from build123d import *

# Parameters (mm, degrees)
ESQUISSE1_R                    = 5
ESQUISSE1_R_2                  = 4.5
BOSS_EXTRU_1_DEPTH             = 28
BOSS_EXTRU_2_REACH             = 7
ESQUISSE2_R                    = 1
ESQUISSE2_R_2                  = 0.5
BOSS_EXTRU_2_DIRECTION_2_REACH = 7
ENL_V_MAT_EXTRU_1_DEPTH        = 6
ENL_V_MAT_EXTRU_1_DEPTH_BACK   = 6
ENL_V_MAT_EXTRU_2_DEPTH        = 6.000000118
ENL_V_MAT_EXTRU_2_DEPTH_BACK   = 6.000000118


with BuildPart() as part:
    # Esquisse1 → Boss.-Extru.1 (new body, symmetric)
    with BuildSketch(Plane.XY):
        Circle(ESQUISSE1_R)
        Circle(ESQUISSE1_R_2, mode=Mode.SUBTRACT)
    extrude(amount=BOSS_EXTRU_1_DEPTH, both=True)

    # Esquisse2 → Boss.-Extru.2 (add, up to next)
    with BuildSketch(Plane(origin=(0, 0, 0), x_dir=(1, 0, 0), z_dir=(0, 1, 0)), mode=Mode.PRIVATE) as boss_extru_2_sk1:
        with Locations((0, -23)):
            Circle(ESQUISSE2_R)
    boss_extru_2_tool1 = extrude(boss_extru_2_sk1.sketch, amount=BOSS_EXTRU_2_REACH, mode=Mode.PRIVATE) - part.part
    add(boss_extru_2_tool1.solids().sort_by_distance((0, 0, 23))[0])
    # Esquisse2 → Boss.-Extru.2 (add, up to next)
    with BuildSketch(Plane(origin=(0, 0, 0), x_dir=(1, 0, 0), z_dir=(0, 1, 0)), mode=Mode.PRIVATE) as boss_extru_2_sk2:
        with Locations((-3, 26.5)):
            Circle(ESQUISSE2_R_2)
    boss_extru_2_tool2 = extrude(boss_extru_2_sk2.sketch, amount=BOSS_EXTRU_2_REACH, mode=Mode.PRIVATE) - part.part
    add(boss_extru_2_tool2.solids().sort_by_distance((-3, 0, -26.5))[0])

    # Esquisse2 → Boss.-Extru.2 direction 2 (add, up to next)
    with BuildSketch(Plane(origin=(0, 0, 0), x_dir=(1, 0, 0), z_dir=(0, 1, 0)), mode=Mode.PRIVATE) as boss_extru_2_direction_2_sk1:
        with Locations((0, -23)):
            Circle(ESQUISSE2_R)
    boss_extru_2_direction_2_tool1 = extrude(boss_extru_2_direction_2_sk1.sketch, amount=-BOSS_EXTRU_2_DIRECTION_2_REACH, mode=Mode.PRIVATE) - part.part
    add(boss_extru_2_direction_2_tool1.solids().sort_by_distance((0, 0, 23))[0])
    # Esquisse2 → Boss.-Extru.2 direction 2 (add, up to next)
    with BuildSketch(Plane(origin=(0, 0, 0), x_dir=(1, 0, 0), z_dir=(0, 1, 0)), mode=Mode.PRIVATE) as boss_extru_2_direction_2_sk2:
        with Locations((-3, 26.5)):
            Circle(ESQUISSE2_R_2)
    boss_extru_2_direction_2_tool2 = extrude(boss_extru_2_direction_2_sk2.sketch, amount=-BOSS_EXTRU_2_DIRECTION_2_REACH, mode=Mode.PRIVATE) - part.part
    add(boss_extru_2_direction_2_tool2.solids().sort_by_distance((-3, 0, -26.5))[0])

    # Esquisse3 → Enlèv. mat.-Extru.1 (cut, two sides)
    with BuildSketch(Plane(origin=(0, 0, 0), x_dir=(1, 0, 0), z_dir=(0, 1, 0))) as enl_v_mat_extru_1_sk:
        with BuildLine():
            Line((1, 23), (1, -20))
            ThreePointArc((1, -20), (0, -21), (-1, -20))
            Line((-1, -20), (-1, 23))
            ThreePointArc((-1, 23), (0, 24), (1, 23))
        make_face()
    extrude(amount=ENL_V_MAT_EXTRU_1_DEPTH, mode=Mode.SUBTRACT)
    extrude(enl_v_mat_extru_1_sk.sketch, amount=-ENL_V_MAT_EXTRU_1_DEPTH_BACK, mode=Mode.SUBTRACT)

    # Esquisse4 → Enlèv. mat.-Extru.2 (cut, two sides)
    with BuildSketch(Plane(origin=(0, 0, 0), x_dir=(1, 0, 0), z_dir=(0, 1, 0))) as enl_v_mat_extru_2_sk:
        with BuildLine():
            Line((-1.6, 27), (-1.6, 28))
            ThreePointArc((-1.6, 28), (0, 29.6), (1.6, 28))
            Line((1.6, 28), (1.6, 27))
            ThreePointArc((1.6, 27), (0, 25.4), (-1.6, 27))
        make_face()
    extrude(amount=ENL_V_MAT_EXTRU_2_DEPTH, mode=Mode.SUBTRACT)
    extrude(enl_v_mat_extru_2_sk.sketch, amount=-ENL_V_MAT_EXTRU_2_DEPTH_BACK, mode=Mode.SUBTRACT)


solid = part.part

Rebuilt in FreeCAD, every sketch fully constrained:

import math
import FreeCAD as App
import Part
import Sketcher
Q = App.Units.Quantity

doc = App.newDocument("Part")
params = doc.addObject("Spreadsheet::Sheet", "Params")
for row, (alias, value) in enumerate([
    ("sketch1_diameter", "10 mm"),
    ("sketch1_diameter2", "9 mm"),
    ("pad1_length", "56 mm"),
    ("sketch2_diameter", "2 mm"),
    ("sketch3_diameter", "1 mm"),
    ("sketch4_diameter", "2 mm"),
    ("sketch5_diameter", "1 mm"),
    ("sketch6_radius", "1 mm"),
    ("sketch6_height", "43 mm"),
    ("sketch7_radius", "1.6 mm"),
    ("sketch7_height", "1 mm"),
], start=1):
    params.set(f"A{row}", alias)
    params.set(f"B{row}", "=" + value)
    params.setAlias(f"B{row}", alias)

body = doc.addObject("PartDesign::Body", "Body")

sketch1 = doc.addObject("Sketcher::SketchObject", "Sketch")
body.addObject(sketch1)
sketch1.AttachmentSupport = (doc.XY_Plane, [""])
sketch1.MapMode = "FlatFace"
sketch1.addGeometry([
    Part.Circle(App.Vector(0, 0, 0), App.Vector(0, 0, 1), 5),
    Part.Circle(App.Vector(0, 0, 0), App.Vector(0, 0, 1), 4.5),
], False)
sketch1.addConstraint([
    Sketcher.Constraint("Coincident", 0, 3, -1, 1),
    Sketcher.Constraint("Coincident", 1, 3, -1, 1),
    Sketcher.Constraint("Diameter", 0, Q("10 mm")),
    Sketcher.Constraint("Diameter", 1, Q("9 mm")),
])
sketch1.setExpression("Constraints[2]", "Params.sketch1_diameter")
sketch1.setExpression("Constraints[3]", "Params.sketch1_diameter2")
pad1 = doc.addObject("PartDesign::Pad", "Pad")
body.addObject(pad1)
pad1.Profile = sketch1
pad1.setExpression("Length", "Params.pad1_length")
pad1.Midplane = True

sketch2 = doc.addObject("Sketcher::SketchObject", "Sketch001")
body.addObject(sketch2)
sketch2.AttachmentSupport = (doc.XZ_Plane, [""])
sketch2.MapMode = "FlatFace"
sketch2.addGeometry(Part.Circle(App.Vector(0, 23, 0), App.Vector(0, 0, 1), 1), False)
sketch2.addConstraint([
    Sketcher.Constraint("PointOnObject", 0, 3, -2),
    Sketcher.Constraint("Diameter", 0, Q("2 mm")),
    Sketcher.Constraint("DistanceY", -1, 1, 0, 3, Q("23 mm")),
])
sketch2.setExpression("Constraints[1]", "Params.sketch2_diameter")
pad2 = doc.addObject("PartDesign::Pad", "Pad001")
body.addObject(pad2)
pad2.Profile = sketch2
pad2.Type = "UpToFirst"
pad2.Reversed = True

sketch3 = doc.addObject("Sketcher::SketchObject", "Sketch002")
body.addObject(sketch3)
sketch3.AttachmentSupport = (doc.XZ_Plane, [""])
sketch3.MapMode = "FlatFace"
sketch3.addGeometry(Part.Circle(App.Vector(-3, -26.5, 0), App.Vector(0, 0, 1), 0.5), False)
sketch3.addConstraint([
    Sketcher.Constraint("Diameter", 0, Q("1 mm")),
    Sketcher.Constraint("DistanceX", 0, 3, -1, 1, Q("3 mm")),
    Sketcher.Constraint("DistanceY", 0, 3, -1, 1, Q("26.5 mm")),
])
sketch3.setExpression("Constraints[0]", "Params.sketch3_diameter")
pad3 = doc.addObject("PartDesign::Pad", "Pad002")
body.addObject(pad3)
pad3.Profile = sketch3
pad3.Type = "UpToFirst"
pad3.Reversed = True

sketch4 = doc.addObject("Sketcher::SketchObject", "Sketch003")
body.addObject(sketch4)
sketch4.AttachmentSupport = (doc.XZ_Plane, [""])
sketch4.MapMode = "FlatFace"
sketch4.addGeometry(Part.Circle(App.Vector(0, 23, 0), App.Vector(0, 0, 1), 1), False)
sketch4.addConstraint([
    Sketcher.Constraint("PointOnObject", 0, 3, -2),
    Sketcher.Constraint("Diameter", 0, Q("2 mm")),
    Sketcher.Constraint("DistanceY", -1, 1, 0, 3, Q("23 mm")),
])
sketch4.setExpression("Constraints[1]", "Params.sketch4_diameter")
pad4 = doc.addObject("PartDesign::Pad", "Pad003")
body.addObject(pad4)
pad4.Profile = sketch4
pad4.Type = "UpToFirst"

sketch5 = doc.addObject("Sketcher::SketchObject", "Sketch004")
body.addObject(sketch5)
sketch5.AttachmentSupport = (doc.XZ_Plane, [""])
sketch5.MapMode = "FlatFace"
sketch5.addGeometry(Part.Circle(App.Vector(-3, -26.5, 0), App.Vector(0, 0, 1), 0.5), False)
sketch5.addConstraint([
    Sketcher.Constraint("Diameter", 0, Q("1 mm")),
    Sketcher.Constraint("DistanceX", 0, 3, -1, 1, Q("3 mm")),
    Sketcher.Constraint("DistanceY", 0, 3, -1, 1, Q("26.5 mm")),
])
sketch5.setExpression("Constraints[0]", "Params.sketch5_diameter")
pad5 = doc.addObject("PartDesign::Pad", "Pad004")
body.addObject(pad5)
pad5.Profile = sketch5
pad5.Type = "UpToFirst"

sketch6 = doc.addObject("Sketcher::SketchObject", "Sketch005")
body.addObject(sketch6)
sketch6.AttachmentSupport = (doc.XZ_Plane, [""])
sketch6.MapMode = "FlatFace"
sketch6.addGeometry([
    Part.LineSegment(App.Vector(1, 20, 0), App.Vector(1, -23, 0)),
    Part.ArcOfCircle(Part.Circle(App.Vector(0, -23, 0), App.Vector(0, 0, 1), 1), math.radians(180), math.radians(360)),
    Part.LineSegment(App.Vector(-1, -23, 0), App.Vector(-1, 20, 0)),
    Part.ArcOfCircle(Part.Circle(App.Vector(0, 20, 0), App.Vector(0, 0, 1), 1), math.radians(0), math.radians(180)),
], False)
sketch6.addConstraint([
    Sketcher.Constraint("Tangent", 0, 2, 1, 2),
    Sketcher.Constraint("Tangent", 1, 1, 2, 1),
    Sketcher.Constraint("Tangent", 2, 2, 3, 2),
    Sketcher.Constraint("Tangent", 3, 1, 0, 1),
    Sketcher.Constraint("Vertical", 0),
    Sketcher.Constraint("Vertical", 2),
    Sketcher.Constraint("PointOnObject", 1, 3, -2),
    Sketcher.Constraint("Radius", 1, Q("1 mm")),
    Sketcher.Constraint("DistanceY", 0, 2, 0, 1, Q("43 mm")),
    Sketcher.Constraint("DistanceY", 1, 3, -1, 1, Q("23 mm")),
])
sketch6.setExpression("Constraints[7]", "Params.sketch6_radius")
sketch6.setExpression("Constraints[8]", "Params.sketch6_height")
pocket1 = doc.addObject("PartDesign::Pocket", "Pocket")
body.addObject(pocket1)
pocket1.Profile = sketch6
pocket1.Type = "ThroughAll"
pocket1.Midplane = True

sketch7 = doc.addObject("Sketcher::SketchObject", "Sketch006")
body.addObject(sketch7)
sketch7.AttachmentSupport = (doc.XZ_Plane, [""])
sketch7.MapMode = "FlatFace"
sketch7.addGeometry([
    Part.LineSegment(App.Vector(-1.6, -28, 0), App.Vector(-1.6, -27, 0)),
    Part.ArcOfCircle(Part.Circle(App.Vector(0, -27, 0), App.Vector(0, 0, 1), 1.6), math.radians(0), math.radians(180)),
    Part.LineSegment(App.Vector(1.6, -27, 0), App.Vector(1.6, -28, 0)),
    Part.ArcOfCircle(Part.Circle(App.Vector(0, -28, 0), App.Vector(0, 0, 1), 1.6), math.radians(180), math.radians(360)),
], False)
sketch7.addConstraint([
    Sketcher.Constraint("Tangent", 0, 2, 1, 2),
    Sketcher.Constraint("Tangent", 1, 1, 2, 1),
    Sketcher.Constraint("Tangent", 2, 2, 3, 2),
    Sketcher.Constraint("Tangent", 3, 1, 0, 1),
    Sketcher.Constraint("Vertical", 0),
    Sketcher.Constraint("Vertical", 2),
    Sketcher.Constraint("PointOnObject", 1, 3, -2),
    Sketcher.Constraint("Radius", 1, Q("1.6 mm")),
    Sketcher.Constraint("DistanceY", 0, 1, 0, 2, Q("1 mm")),
    Sketcher.Constraint("DistanceY", 1, 3, -1, 1, Q("27 mm")),
])
sketch7.setExpression("Constraints[7]", "Params.sketch7_radius")
sketch7.setExpression("Constraints[8]", "Params.sketch7_height")
pocket2 = doc.addObject("PartDesign::Pocket", "Pocket001")
body.addObject(pocket2)
pocket2.Profile = sketch7
pocket2.Type = "ThroughAll"
pocket2.Midplane = True

doc.recompute()
